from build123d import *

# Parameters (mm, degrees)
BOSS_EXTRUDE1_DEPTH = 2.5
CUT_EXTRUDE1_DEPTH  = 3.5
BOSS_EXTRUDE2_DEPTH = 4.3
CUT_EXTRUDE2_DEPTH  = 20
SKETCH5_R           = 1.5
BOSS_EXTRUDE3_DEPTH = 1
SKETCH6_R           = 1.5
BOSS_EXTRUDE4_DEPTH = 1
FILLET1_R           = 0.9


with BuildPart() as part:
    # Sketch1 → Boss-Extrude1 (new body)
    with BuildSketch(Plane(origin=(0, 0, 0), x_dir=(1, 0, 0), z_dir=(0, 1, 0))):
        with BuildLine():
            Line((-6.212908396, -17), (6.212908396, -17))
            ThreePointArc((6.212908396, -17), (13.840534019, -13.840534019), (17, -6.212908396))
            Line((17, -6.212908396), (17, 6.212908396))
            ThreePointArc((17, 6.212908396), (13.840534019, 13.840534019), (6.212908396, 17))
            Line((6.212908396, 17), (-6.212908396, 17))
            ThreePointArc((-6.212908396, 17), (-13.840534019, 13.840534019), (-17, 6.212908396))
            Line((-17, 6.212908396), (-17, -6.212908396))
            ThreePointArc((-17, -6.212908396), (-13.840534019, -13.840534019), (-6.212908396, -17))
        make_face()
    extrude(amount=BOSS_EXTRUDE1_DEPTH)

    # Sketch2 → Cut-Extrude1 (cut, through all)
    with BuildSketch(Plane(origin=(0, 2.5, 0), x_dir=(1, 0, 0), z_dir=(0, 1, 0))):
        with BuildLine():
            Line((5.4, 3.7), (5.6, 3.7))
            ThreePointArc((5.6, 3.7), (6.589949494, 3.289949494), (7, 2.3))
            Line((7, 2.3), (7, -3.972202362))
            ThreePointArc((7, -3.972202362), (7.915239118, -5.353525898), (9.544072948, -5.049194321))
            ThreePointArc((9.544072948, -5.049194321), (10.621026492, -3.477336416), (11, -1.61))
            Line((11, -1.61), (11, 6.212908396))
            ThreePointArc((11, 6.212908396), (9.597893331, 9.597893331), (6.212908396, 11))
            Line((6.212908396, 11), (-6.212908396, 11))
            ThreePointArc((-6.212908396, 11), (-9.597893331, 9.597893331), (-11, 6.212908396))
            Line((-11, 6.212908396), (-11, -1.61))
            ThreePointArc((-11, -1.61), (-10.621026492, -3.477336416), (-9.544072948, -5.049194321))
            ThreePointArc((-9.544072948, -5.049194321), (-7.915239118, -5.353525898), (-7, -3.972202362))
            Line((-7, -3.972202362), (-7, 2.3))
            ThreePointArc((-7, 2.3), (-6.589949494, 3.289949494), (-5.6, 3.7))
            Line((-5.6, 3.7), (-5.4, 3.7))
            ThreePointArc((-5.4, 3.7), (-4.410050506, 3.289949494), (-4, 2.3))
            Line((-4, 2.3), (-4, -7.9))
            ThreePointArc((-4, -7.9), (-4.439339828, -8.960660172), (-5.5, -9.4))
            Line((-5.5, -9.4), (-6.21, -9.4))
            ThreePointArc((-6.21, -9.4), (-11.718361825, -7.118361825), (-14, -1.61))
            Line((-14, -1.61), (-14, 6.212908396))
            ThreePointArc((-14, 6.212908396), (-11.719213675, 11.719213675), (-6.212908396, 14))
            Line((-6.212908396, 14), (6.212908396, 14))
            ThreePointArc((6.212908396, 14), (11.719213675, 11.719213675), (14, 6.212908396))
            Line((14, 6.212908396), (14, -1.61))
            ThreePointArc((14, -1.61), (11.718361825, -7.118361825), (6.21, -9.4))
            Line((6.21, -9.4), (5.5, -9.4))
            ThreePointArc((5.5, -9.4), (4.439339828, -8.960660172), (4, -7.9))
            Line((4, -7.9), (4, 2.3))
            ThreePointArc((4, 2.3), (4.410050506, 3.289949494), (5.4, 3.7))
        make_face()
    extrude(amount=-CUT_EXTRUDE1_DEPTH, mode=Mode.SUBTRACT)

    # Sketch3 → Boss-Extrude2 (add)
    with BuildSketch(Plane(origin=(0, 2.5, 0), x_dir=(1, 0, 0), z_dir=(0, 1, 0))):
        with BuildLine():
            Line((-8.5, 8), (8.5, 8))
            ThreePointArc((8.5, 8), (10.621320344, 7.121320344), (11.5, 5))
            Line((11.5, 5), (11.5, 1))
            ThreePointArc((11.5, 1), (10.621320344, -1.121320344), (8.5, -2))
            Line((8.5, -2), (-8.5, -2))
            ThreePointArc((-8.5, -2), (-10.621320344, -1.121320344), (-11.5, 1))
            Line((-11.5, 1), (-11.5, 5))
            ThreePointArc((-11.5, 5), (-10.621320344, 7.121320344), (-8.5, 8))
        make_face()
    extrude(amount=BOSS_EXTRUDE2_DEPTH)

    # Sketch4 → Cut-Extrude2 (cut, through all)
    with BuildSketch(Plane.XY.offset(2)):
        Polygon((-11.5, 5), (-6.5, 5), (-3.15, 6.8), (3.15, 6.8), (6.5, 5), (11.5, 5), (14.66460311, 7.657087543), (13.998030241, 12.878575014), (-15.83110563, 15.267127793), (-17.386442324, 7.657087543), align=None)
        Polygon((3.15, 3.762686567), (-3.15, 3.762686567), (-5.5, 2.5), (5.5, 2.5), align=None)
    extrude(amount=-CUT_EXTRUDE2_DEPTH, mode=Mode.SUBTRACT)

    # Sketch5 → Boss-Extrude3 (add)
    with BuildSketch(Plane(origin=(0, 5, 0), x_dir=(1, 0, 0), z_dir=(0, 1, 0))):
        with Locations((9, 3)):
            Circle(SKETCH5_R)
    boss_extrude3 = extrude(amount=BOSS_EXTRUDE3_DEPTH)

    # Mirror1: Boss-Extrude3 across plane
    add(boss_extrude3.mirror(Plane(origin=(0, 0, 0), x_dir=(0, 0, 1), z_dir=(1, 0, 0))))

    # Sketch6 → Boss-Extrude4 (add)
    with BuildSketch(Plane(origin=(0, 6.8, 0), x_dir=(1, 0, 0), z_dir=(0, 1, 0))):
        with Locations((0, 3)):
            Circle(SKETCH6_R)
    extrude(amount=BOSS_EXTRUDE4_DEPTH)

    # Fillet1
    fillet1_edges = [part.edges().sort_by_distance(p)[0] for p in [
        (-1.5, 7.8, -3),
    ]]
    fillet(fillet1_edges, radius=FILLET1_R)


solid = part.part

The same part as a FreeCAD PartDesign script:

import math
import FreeCAD as App
import Part
import Sketcher
from FreeCAD import Vector
Q = App.Units.Quantity


def edges_at(feature, points):
    """Names of the edges that pass closest to the given points."""
    edges = feature.Shape.Edges
    near = lambda p: min(range(len(edges)), key=lambda i: edges[i].distToShape(Part.Vertex(*p))[0])
    return sorted({f"Edge{near(p) + 1}" for p in points})

doc = App.newDocument("Part")
params = doc.addObject("Spreadsheet::Sheet", "Params")
for row, (alias, value) in enumerate([
    ("pad1_length", "2.5 mm"),
    ("sketch2_radius", "1.4 mm"),
    ("sketch2_radius2", "1.5 mm"),
    ("sketch2_radius3", "7.79 mm"),
    ("sketch2_radius4", "4.79 mm"),
    ("sketch2_width", "0.2 mm"),
    ("sketch3_radius", "3 mm"),
    ("sketch3_width", "17 mm"),
    ("sketch3_height", "4 mm"),
    ("pad2_length", "4.3 mm"),
    ("sketch4_width", "5 mm"),
    ("sketch4_width2", "11 mm"),
    ("sketch4_width3", "6.3 mm"),
    ("sketch5_diameter", "3 mm"),
    ("pad3_length", "1 mm"),
    ("sketch6_diameter", "3 mm"),
    ("pad4_length", "1 mm"),
    ("fillet_radius", "0.9 mm"),
], start=1):
    params.set(f"A{row}", alias)
    params.set(f"B{row}", "=" + value)
    params.setAlias(f"B{row}", alias)

body = doc.addObject("PartDesign::Body", "Body")

sketch1 = doc.addObject("Sketcher::SketchObject", "Sketch")
body.addObject(sketch1)
sketch1.AttachmentSupport = (doc.XZ_Plane, [""])
sketch1.MapMode = "FlatFace"
sketch1.addGeometry([
    Part.LineSegment(Vector(-6, 17, 0), Vector(6, 17, 0)),
    Part.ArcOfCircle(Part.Circle(Vector(6, 6, 0), Vector(0, 0, 1), 11), math.radians(0), math.radians(90)),
    Part.LineSegment(Vector(17, 6, 0), Vector(17, -6, 0)),
    Part.ArcOfCircle(Part.Circle(Vector(6, -6, 0), Vector(0, 0, 1), 11), math.radians(-90), math.radians(0)),
    Part.LineSegment(Vector(6, -17, 0), Vector(-6, -17, 0)),
    Part.ArcOfCircle(Part.Circle(Vector(-6, -6, 0), Vector(0, 0, 1), 11), math.radians(180), math.radians(270)),
    Part.LineSegment(Vector(-17, -6, 0), Vector(-17, 6, 0)),
    Part.ArcOfCircle(Part.Circle(Vector(-6, 6, 0), Vector(0, 0, 1), 11), math.radians(90), math.radians(180)),
], False)
sketch1.addConstraint([
    Sketcher.Constraint("Tangent", 0, 2, 1, 2),
    Sketcher.Constraint("Tangent", 1, 1, 2, 1),
    Sketcher.Constraint("Tangent", 2, 2, 3, 2),
    Sketcher.Constraint("Tangent", 3, 1, 4, 1),
    Sketcher.Constraint("Tangent", 4, 2, 5, 2),
    Sketcher.Constraint("Tangent", 5, 1, 6, 1),
    Sketcher.Constraint("Tangent", 6, 2, 7, 2),
    Sketcher.Constraint("Tangent", 7, 1, 0, 1),
    Sketcher.Constraint("Horizontal", 0),
    Sketcher.Constraint("Vertical", 2),
    Sketcher.Constraint("Horizontal", 4),
    Sketcher.Constraint("Vertical", 6),
    Sketcher.Constraint("Equal", 1, 3),
    Sketcher.Constraint("Equal", 3, 5),
    Sketcher.Constraint("Equal", 5, 7),
    Sketcher.Constraint("Symmetric", 1, 3, 5, 3, -1, 1),
    Sketcher.Constraint("Equal", 4, 2),
    Sketcher.Constraint("DistanceY", -1, 1, 0, 2, Q("17 mm")),
    Sketcher.Constraint("Radius", 1, Q("10.787092 mm")),
])
pad1 = doc.addObject("PartDesign::Pad", "Pad")
body.addObject(pad1)
pad1.Profile = sketch1
pad1.setExpression("Length", "Params.pad1_length")
pad1.Reversed = True

sketch2 = doc.addObject("Sketcher::SketchObject", "Sketch001")
body.addObject(sketch2)
sketch2.AttachmentSupport = (doc.XZ_Plane, [""])
sketch2.MapMode = "FlatFace"
sketch2.AttachmentOffset = App.Placement(Vector(0, 0, -2.5), App.Rotation())
sketch2.addGeometry([
    Part.LineSegment(Vector(5.6, -3.7, 0), Vector(5.4, -3.7, 0)),
    Part.ArcOfCircle(Part.Circle(Vector(5.4, -2.3, 0), Vector(0, 0, 1), 1.4), math.radians(180), math.radians(270)),
    Part.LineSegment(Vector(4, -2.3, 0), Vector(4, 7.9, 0)),
    Part.ArcOfCircle(Part.Circle(Vector(5.5, 7.9, 0), Vector(0, 0, 1), 1.5), math.radians(90), math.radians(180)),
    Part.LineSegment(Vector(5.5, 9.4, 0), Vector(6.21, 9.4, 0)),
    Part.ArcOfCircle(Part.Circle(Vector(6.21, 1.61, 0), Vector(0, 0, 1), 7.79), math.radians(0), math.radians(90)),
    Part.LineSegment(Vector(14, 1.61, 0), Vector(14, -6.21, 0)),
    Part.ArcOfCircle(Part.Circle(Vector(6.21, -6.21, 0), Vector(0, 0, 1), 7.79), math.radians(-90), math.radians(0)),
    Part.LineSegment(Vector(6.21, -14, 0), Vector(-6.21, -14, 0)),
    Part.ArcOfCircle(Part.Circle(Vector(-6.21, -6.21, 0), Vector(0, 0, 1), 7.79), math.radians(180), math.radians(270)),
    Part.LineSegment(Vector(-14, -6.21, 0), Vector(-14, 1.61, 0)),
    Part.ArcOfCircle(Part.Circle(Vector(-6.21, 1.61, 0), Vector(0, 0, 1), 7.79), math.radians(90), math.radians(180)),
    Part.LineSegment(Vector(-6.21, 9.4, 0), Vector(-5.5, 9.4, 0)),
    Part.ArcOfCircle(Part.Circle(Vector(-5.5, 7.9, 0), Vector(0, 0, 1), 1.5), math.radians(0), math.radians(90)),
    Part.LineSegment(Vector(-4, 7.9, 0), Vector(-4, -2.3, 0)),
    Part.ArcOfCircle(Part.Circle(Vector(-5.4, -2.3, 0), Vector(0, 0, 1), 1.4), math.radians(-90), math.radians(0)),
    Part.LineSegment(Vector(-5.4, -3.7, 0), Vector(-5.6, -3.7, 0)),
    Part.ArcOfCircle(Part.Circle(Vector(-5.6, -2.3, 0), Vector(0, 0, 1), 1.4), math.radians(180), math.radians(270)),
    Part.LineSegment(Vector(-7, -2.3, 0), Vector(-7, 3.97, 0)),
    Part.ArcOfCircle(Part.Circle(Vector(-8.5, 3.97, 0), Vector(0, 0, 1), 1.5), math.radians(0), math.radians(134)),
    Part.ArcOfCircle(Part.Circle(Vector(-6.21, 1.61, 0), Vector(0, 0, 1), 4.79), math.radians(134), math.radians(180)),
    Part.LineSegment(Vector(-11, 1.61, 0), Vector(-11, -6.21, 0)),
    Part.ArcOfCircle(Part.Circle(Vector(-6.21, -6.21, 0), Vector(0, 0, 1), 4.79), math.radians(-180), math.radians(-90)),
    Part.LineSegment(Vector(-6.21, -11, 0), Vector(6.21, -11, 0)),
    Part.ArcOfCircle(Part.Circle(Vector(6.21, -6.21, 0), Vector(0, 0, 1), 4.79), math.radians(-90), math.radians(0)),
    Part.LineSegment(Vector(11, -6.21, 0), Vector(11, 1.61, 0)),
    Part.ArcOfCircle(Part.Circle(Vector(6.21, 1.61, 0), Vector(0, 0, 1), 4.79), math.radians(0), math.radians(46)),
    Part.ArcOfCircle(Part.Circle(Vector(8.5, 3.97, 0), Vector(0, 0, 1), 1.5), math.radians(46), math.radians(180)),
    Part.LineSegment(Vector(7, 3.97, 0), Vector(7, -2.3, 0)),
    Part.ArcOfCircle(Part.Circle(Vector(5.6, -2.3, 0), Vector(0, 0, 1), 1.4), math.radians(-90), math.radians(0)),
], False)
sketch2.addConstraint([
    Sketcher.Constraint("Tangent", 0, 2, 1, 2),
    Sketcher.Constraint("Tangent", 1, 1, 2, 1),
    Sketcher.Constraint("Tangent", 2, 2, 3, 2),
    Sketcher.Constraint("Tangent", 3, 1, 4, 1),
    Sketcher.Constraint("Tangent", 4, 2, 5, 2),
    Sketcher.Constraint("Tangent", 5, 1, 6, 1),
    Sketcher.Constraint("Tangent", 6, 2, 7, 2),
    Sketcher.Constraint("Tangent", 7, 1, 8, 1),
    Sketcher.Constraint("Tangent", 8, 2, 9, 2),
    Sketcher.Constraint("Tangent", 9, 1, 10, 1),
    Sketcher.Constraint("Tangent", 10, 2, 11, 2),
    Sketcher.Constraint("Tangent", 11, 1, 12, 1),
    Sketcher.Constraint("Tangent", 12, 2, 13, 2),
    Sketcher.Constraint("Tangent", 13, 1, 14, 1),
    Sketcher.Constraint("Tangent", 14, 2, 15, 2),
    Sketcher.Constraint("Tangent", 15, 1, 16, 1),
    Sketcher.Constraint("Tangent", 16, 2, 17, 2),
    Sketcher.Constraint("Tangent", 17, 1, 18, 1),
    Sketcher.Constraint("Tangent", 18, 2, 19, 1),
    Sketcher.Constraint("Tangent", 19, 2, 20, 1),
    Sketcher.Constraint("Tangent", 20, 2, 21, 1),
    Sketcher.Constraint("Tangent", 21, 2, 22, 1),
    Sketcher.Constraint("Tangent", 22, 2, 23, 1),
    Sketcher.Constraint("Tangent", 23, 2, 24, 1),
    Sketcher.Constraint("Tangent", 24, 2, 25, 1),
    Sketcher.Constraint("Tangent", 25, 2, 26, 1),
    Sketcher.Constraint("Tangent", 26, 2, 27, 1),
    Sketcher.Constraint("Tangent", 27, 2, 28, 1),
    Sketcher.Constraint("Tangent", 28, 2, 29, 2),
    Sketcher.Constraint("Tangent", 29, 1, 0, 1),
    Sketcher.Constraint("Horizontal", 0),
    Sketcher.Constraint("Vertical", 2),
    Sketcher.Constraint("Horizontal", 4),
    Sketcher.Constraint("Vertical", 6),
    Sketcher.Constraint("Horizontal", 8),
    Sketcher.Constraint("Vertical", 10),
    Sketcher.Constraint("Horizontal", 12),
    Sketcher.Constraint("Vertical", 14),
    Sketcher.Constraint("Horizontal", 16),
    Sketcher.Constraint("Vertical", 18),
    Sketcher.Constraint("Vertical", 21),
    Sketcher.Constraint("Horizontal", 23),
    Sketcher.Constraint("Vertical", 25),
    Sketcher.Constraint("Vertical", 28),
    Sketcher.Constraint("Coincident", 20, 3, 11, 3),
    Sketcher.Constraint("Coincident", 22, 3, 9, 3),
    Sketcher.Constraint("Coincident", 24, 3, 7, 3),
    Sketcher.Constraint("Coincident", 26, 3, 5, 3),
    Sketcher.Constraint("Equal", 7, 9),
    Sketcher.Constraint("Equal", 5, 11),
    Sketcher.Constraint("Equal", 3, 13),
    Sketcher.Constraint("Equal", 1, 15),
    Sketcher.Constraint("Equal", 15, 17),
    Sketcher.Constraint("Equal", 13, 19),
    Sketcher.Constraint("Equal", 19, 27),
    Sketcher.Constraint("Equal", 17, 29),
    Sketcher.Constraint("Symmetric", 5, 3, 11, 3, -2),
    Sketcher.Constraint("Symmetric", 1, 3, 15, 3, -2),
    Sketcher.Constraint("Horizontal", 19, 3, 27, 3),
    Sketcher.Constraint("Radius", 1, Q("1.4 mm")),
    Sketcher.Constraint("Radius", 3, Q("1.5 mm")),
    Sketcher.Constraint("Radius", 5, Q("7.79 mm")),
    Sketcher.Constraint("Radius", 20, Q("4.79 mm")),
    Sketcher.Constraint("DistanceX", 0, 2, 0, 1, Q("0.2 mm")),
    Sketcher.Constraint("DistanceY", 2, 1, 2, 2, Q("10.2 mm")),
    Sketcher.Constraint("DistanceX", -1, 1, 1, 1, Q("4 mm")),
    Sketcher.Constraint("DistanceX", -1, 1, 5, 1, Q("14 mm")),
    Sketcher.Constraint("DistanceY", 7, 1, -1, 1, Q("14 mm")),
    Sketcher.Constraint("DistanceY", 1, 3, -1, 1, Q("2.3 mm")),
    Sketcher.Constraint("Radius", 7, Q("7.787092 mm")),
])
sketch2.setExpression("Constraints[59]", "Params.sketch2_radius")
sketch2.setExpression("Constraints[60]", "Params.sketch2_radius2")
sketch2.setExpression("Constraints[61]", "Params.sketch2_radius3")
sketch2.setExpression("Constraints[62]", "Params.sketch2_radius4")
sketch2.setExpression("Constraints[63]", "Params.sketch2_width")
pocket1 = doc.addObject("PartDesign::Pocket", "Pocket")
body.addObject(pocket1)
pocket1.Profile = sketch2
pocket1.Type = "ThroughAll"
pocket1.Reversed = True

sketch3 = doc.addObject("Sketcher::SketchObject", "Sketch002")
body.addObject(sketch3)
sketch3.AttachmentSupport = (doc.XZ_Plane, [""])
sketch3.MapMode = "FlatFace"
sketch3.AttachmentOffset = App.Placement(Vector(0, 0, -2.5), App.Rotation())
sketch3.addGeometry([
    Part.LineSegment(Vector(8.5, -8, 0), Vector(-8.5, -8, 0)),
    Part.ArcOfCircle(Part.Circle(Vector(-8.5, -5, 0), Vector(0, 0, 1), 3), math.radians(180), math.radians(270)),
    Part.LineSegment(Vector(-11.5, -5, 0), Vector(-11.5, -1, 0)),
    Part.ArcOfCircle(Part.Circle(Vector(-8.5, -1, 0), Vector(0, 0, 1), 3), math.radians(90), math.radians(180)),
    Part.LineSegment(Vector(-8.5, 2, 0), Vector(8.5, 2, 0)),
    Part.ArcOfCircle(Part.Circle(Vector(8.5, -1, 0), Vector(0, 0, 1), 3), math.radians(0), math.radians(90)),
    Part.LineSegment(Vector(11.5, -1, 0), Vector(11.5, -5, 0)),
    Part.ArcOfCircle(Part.Circle(Vector(8.5, -5, 0), Vector(0, 0, 1), 3), math.radians(-90), math.radians(0)),
], False)
sketch3.addConstraint([
    Sketcher.Constraint("Tangent", 0, 2, 1, 2),
    Sketcher.Constraint("Tangent", 1, 1, 2, 1),
    Sketcher.Constraint("Tangent", 2, 2, 3, 2),
    Sketcher.Constraint("Tangent", 3, 1, 4, 1),
    Sketcher.Constraint("Tangent", 4, 2, 5, 2),
    Sketcher.Constraint("Tangent", 5, 1, 6, 1),
    Sketcher.Constraint("Tangent", 6, 2, 7, 2),
    Sketcher.Constraint("Tangent", 7, 1, 0, 1),
    Sketcher.Constraint("Horizontal", 0),
    Sketcher.Constraint("Vertical", 2),
    Sketcher.Constraint("Horizontal", 4),
    Sketcher.Constraint("Vertical", 6),
    Sketcher.Constraint("Equal", 1, 3),
    Sketcher.Constraint("Equal", 3, 5),
    Sketcher.Constraint("Equal", 5, 7),
    Sketcher.Constraint("Radius", 1, Q("3 mm")),
    Sketcher.Constraint("DistanceX", 0, 2, 0, 1, Q("17 mm")),
    Sketcher.Constraint("DistanceY", 2, 1, 2, 2, Q("4 mm")),
    Sketcher.Constraint("DistanceY", 1, 3, -1, 1, Q("5 mm")),
    Sketcher.Constraint("DistanceX", 1, 3, -1, 1, Q("8.5 mm")),
])
sketch3.setExpression("Constraints[15]", "Params.sketch3_radius")
sketch3.setExpression("Constraints[16]", "Params.sketch3_width")
sketch3.setExpression("Constraints[17]", "Params.sketch3_height")
pad2 = doc.addObject("PartDesign::Pad", "Pad001")
body.addObject(pad2)
pad2.Profile = sketch3
pad2.setExpression("Length", "Params.pad2_length")
pad2.Reversed = True

sketch4 = doc.addObject("Sketcher::SketchObject", "Sketch003")
body.addObject(sketch4)
sketch4.AttachmentSupport = (doc.XY_Plane, [""])
sketch4.MapMode = "FlatFace"
sketch4.AttachmentOffset = App.Placement(Vector(0, 0, 2), App.Rotation())
sketch4.addGeometry([
    Part.LineSegment(Vector(-11.5, 5, 0), Vector(-6.5, 5, 0)),
    Part.LineSegment(Vector(-6.5, 5, 0), Vector(-3.1, 6.8, 0)),
    Part.LineSegment(Vector(-3.1, 6.8, 0), Vector(3.1, 6.8, 0)),
    Part.LineSegment(Vector(3.1, 6.8, 0), Vector(6.5, 5, 0)),
    Part.LineSegment(Vector(6.5, 5, 0), Vector(11.5, 5, 0)),
    Part.LineSegment(Vector(11.5, 5, 0), Vector(14.7, 7.7, 0)),
    Part.LineSegment(Vector(14.7, 7.7, 0), Vector(14, 12.9, 0)),
    Part.LineSegment(Vector(14, 12.9, 0), Vector(-15.8, 15.3, 0)),
    Part.LineSegment(Vector(-15.8, 15.3, 0), Vector(-17.4, 7.7, 0)),
    Part.LineSegment(Vector(-17.4, 7.7, 0), Vector(-11.5, 5, 0)),
    Part.LineSegment(Vector(3.1, 3.8, 0), Vector(-3.1, 3.8, 0)),
    Part.LineSegment(Vector(-3.1, 3.8, 0), Vector(-5.5, 2.5, 0)),
    Part.LineSegment(Vector(-5.5, 2.5, 0), Vector(5.5, 2.5, 0)),
    Part.LineSegment(Vector(5.5, 2.5, 0), Vector(3.1, 3.8, 0)),
], False)
sketch4.addConstraint([
    Sketcher.Constraint("Coincident", 0, 2, 1, 1),
    Sketcher.Constraint("Coincident", 1, 2, 2, 1),
    Sketcher.Constraint("Coincident", 2, 2, 3, 1),
    Sketcher.Constraint("Coincident", 3, 2, 4, 1),
    Sketcher.Constraint("Coincident", 4, 2, 5, 1),
    Sketcher.Constraint("Coincident", 5, 2, 6, 1),
    Sketcher.Constraint("Coincident", 6, 2, 7, 1),
    Sketcher.Constraint("Coincident", 7, 2, 8, 1),
    Sketcher.Constraint("Coincident", 8, 2, 9, 1),
    Sketcher.Constraint("Coincident", 9, 2, 0, 1),
    Sketcher.Constraint("Coincident", 10, 2, 11, 1),
    Sketcher.Constraint("Coincident", 11, 2, 12, 1),
    Sketcher.Constraint("Coincident", 12, 2, 13, 1),
    Sketcher.Constraint("Coincident", 13, 2, 10, 1),
    Sketcher.Constraint("Horizontal", 0),
    Sketcher.Constraint("Horizontal", 2),
    Sketcher.Constraint("Horizontal", 4),
    Sketcher.Constraint("Horizontal", 10),
    Sketcher.Constraint("Horizontal", 12),
    Sketcher.Constraint("Symmetric", 0, 2, 3, 2, -2),
    Sketcher.Constraint("Parallel", 1, 11),
    Sketcher.Constraint("Parallel", 3, 13),
    Sketcher.Constraint("Horizontal", 5, 2, 8, 2),
    Sketcher.Constraint("Vertical", 1, 2, 10, 2),
    Sketcher.Constraint("Vertical", 2, 2, 13, 2),
    Sketcher.Constraint("Equal", 0, 4),
    Sketcher.Constraint("Equal", 1, 3),
    Sketcher.Constraint("DistanceX", 0, 1, 0, 2, Q("5 mm")),
    Sketcher.Constraint("DistanceX", 12, 1, 12, 2, Q("11 mm")),
    Sketcher.Constraint("DistanceX", 2, 1, 2, 2, Q("6.3 mm")),
    Sketcher.Constraint("DistanceY", -1, 1, 0, 2, Q("5 mm")),
    Sketcher.Constraint("DistanceX", 0, 2, 3, 2, Q("13 mm")),
    Sketcher.Constraint("DistanceY", -1, 1, 1, 2, Q("6.8 mm")),
    Sketcher.Constraint("DistanceY", -1, 1, 11, 2, Q("2.5 mm")),
    Sketcher.Constraint("Distance", 5, Q("4.13217 mm")),
    Sketcher.Constraint("DistanceX", -1, 1, 6, 2, Q("13.99803 mm")),
    Sketcher.Constraint("DistanceY", 8, 2, 7, 2, Q("7.61004 mm")),
    Sketcher.Constraint("Distance", 6, Q("5.263863 mm")),
    Sketcher.Constraint("Distance", 7, Q("29.924614 mm")),
    Sketcher.Constraint("Distance", 8, Q("7.767354 mm")),
    Sketcher.Constraint("Distance", 9, Q("6.458353 mm")),
])
sketch4.setExpression("Constraints[27]", "Params.sketch4_width")
sketch4.setExpression("Constraints[28]", "Params.sketch4_width2")
sketch4.setExpression("Constraints[29]", "Params.sketch4_width3")
pocket2 = doc.addObject("PartDesign::Pocket", "Pocket001")
body.addObject(pocket2)
pocket2.Profile = sketch4
pocket2.Type = "ThroughAll"

sketch5 = doc.addObject("Sketcher::SketchObject", "Sketch004")
body.addObject(sketch5)
sketch5.AttachmentSupport = (doc.XZ_Plane, [""])
sketch5.MapMode = "FlatFace"
sketch5.AttachmentOffset = App.Placement(Vector(0, 0, -5), App.Rotation())
sketch5.addGeometry(Part.Circle(Vector(9, -3, 0), Vector(0, 0, 1), 1.5), False)
sketch5.addConstraint([
    Sketcher.Constraint("Diameter", 0, Q("3 mm")),
    Sketcher.Constraint("DistanceX", -1, 1, 0, 3, Q("9 mm")),
    Sketcher.Constraint("DistanceY", 0, 3, -1, 1, Q("3 mm")),
])
sketch5.setExpression("Constraints[0]", "Params.sketch5_diameter")
pad3 = doc.addObject("PartDesign::Pad", "Pad002")
body.addObject(pad3)
pad3.Profile = sketch5
pad3.setExpression("Length", "Params.pad3_length")
pad3.Reversed = True
doc.recompute()

mirrored = doc.addObject("PartDesign::Mirrored", "Mirrored")
body.addObject(mirrored)
mirrored.Originals = [pad3]
mirrored.MirrorPlane = (doc.YZ_Plane, [""])
body.Tip = mirrored

sketch6 = doc.addObject("Sketcher::SketchObject", "Sketch005")
body.addObject(sketch6)
sketch6.AttachmentSupport = (doc.XZ_Plane, [""])
sketch6.MapMode = "FlatFace"
sketch6.AttachmentOffset = App.Placement(Vector(0, 0, -6.8), App.Rotation())
sketch6.addGeometry(Part.Circle(Vector(0, -3, 0), Vector(0, 0, 1), 1.5), False)
sketch6.addConstraint([
    Sketcher.Constraint("PointOnObject", 0, 3, -2),
    Sketcher.Constraint("Diameter", 0, Q("3 mm")),
    Sketcher.Constraint("DistanceY", 0, 3, -1, 1, Q("3 mm")),
])
sketch6.setExpression("Constraints[1]", "Params.sketch6_diameter")
pad4 = doc.addObject("PartDesign::Pad", "Pad003")
body.addObject(pad4)
pad4.Profile = sketch6
pad4.setExpression("Length", "Params.pad4_length")
pad4.Reversed = True
doc.recompute()

fillet = doc.addObject("PartDesign::Fillet", "Fillet")
body.addObject(fillet)
fillet.Base = (pad4, edges_at(pad4, [(-1.5, 7.8, -3)]))
fillet.setExpression("Radius", "Params.fillet_radius")

doc.recompute()
